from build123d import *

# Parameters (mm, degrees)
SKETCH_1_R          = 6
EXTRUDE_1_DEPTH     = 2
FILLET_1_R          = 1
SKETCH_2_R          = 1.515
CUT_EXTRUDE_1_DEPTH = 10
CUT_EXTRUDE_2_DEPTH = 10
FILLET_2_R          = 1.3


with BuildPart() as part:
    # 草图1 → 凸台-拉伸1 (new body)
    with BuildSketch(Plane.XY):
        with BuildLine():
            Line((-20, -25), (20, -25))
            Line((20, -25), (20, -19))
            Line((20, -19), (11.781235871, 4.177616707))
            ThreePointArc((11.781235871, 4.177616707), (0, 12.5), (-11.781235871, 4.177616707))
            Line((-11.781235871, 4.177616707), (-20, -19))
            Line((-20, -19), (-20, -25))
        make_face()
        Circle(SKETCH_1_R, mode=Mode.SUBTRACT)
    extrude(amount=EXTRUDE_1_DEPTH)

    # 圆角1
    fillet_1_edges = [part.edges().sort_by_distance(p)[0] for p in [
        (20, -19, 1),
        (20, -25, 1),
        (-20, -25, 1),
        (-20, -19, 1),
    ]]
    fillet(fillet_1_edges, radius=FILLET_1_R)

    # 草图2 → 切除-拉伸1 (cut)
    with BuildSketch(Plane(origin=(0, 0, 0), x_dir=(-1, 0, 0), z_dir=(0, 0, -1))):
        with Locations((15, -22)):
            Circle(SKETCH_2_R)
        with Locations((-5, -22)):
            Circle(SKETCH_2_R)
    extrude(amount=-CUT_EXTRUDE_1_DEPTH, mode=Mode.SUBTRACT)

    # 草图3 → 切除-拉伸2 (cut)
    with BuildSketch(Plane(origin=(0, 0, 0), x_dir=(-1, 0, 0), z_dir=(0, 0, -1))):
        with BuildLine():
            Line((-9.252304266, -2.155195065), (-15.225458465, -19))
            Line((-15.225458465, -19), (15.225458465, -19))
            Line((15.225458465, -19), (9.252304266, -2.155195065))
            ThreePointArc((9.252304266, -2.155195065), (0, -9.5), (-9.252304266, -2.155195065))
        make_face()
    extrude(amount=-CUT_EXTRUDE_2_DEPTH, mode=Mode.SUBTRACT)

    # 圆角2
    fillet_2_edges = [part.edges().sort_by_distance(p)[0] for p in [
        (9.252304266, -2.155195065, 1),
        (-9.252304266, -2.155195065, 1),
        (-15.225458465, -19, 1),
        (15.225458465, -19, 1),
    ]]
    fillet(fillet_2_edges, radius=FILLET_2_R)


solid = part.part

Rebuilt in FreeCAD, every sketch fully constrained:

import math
import FreeCAD as App
import Part
import Sketcher


def edges_at(feature, points):
    """Names of the edges that pass closest to the given points."""
    edges = feature.Shape.Edges
    near = lambda p: min(range(len(edges)), key=lambda i: edges[i].distToShape(Part.Vertex(*p))[0])
    return sorted({f"Edge{near(p) + 1}" for p in points})

doc = App.newDocument("Part")
body = doc.addObject("PartDesign::Body", "Body")

# Sketch on XY plane
sketch1 = doc.addObject("Sketcher::SketchObject", "Sketch")
body.addObject(sketch1)
sketch1.AttachmentSupport = (doc.XY_Plane, [""])
sketch1.MapMode = "FlatFace"
sketch1.addGeometry([
    Part.LineSegment(App.Vector(-20, -25, 0), App.Vector(20, -25, 0)),  # 0
    Part.LineSegment(App.Vector(20, -25, 0), App.Vector(20, -19, 0)),  # 1
    Part.LineSegment(App.Vector(20, -19, 0), App.Vector(12, 4, 0)),  # 2
    Part.ArcOfCircle(Part.Circle(App.Vector(0, 0, 0), App.Vector(0, 0, 1), 12), math.radians(20), math.radians(160)),  # 3
    Part.LineSegment(App.Vector(-12, 4, 0), App.Vector(-20, -19, 0)),  # 4
    Part.LineSegment(App.Vector(-20, -19, 0), App.Vector(-20, -25, 0)),  # 5
    Part.Circle(App.Vector(0, 0, 0), App.Vector(0, 0, 1), 6),  # 6
], False)
sketch1.addConstraint([
    Sketcher.Constraint("Coincident", 0, 2, 1, 1),
    Sketcher.Constraint("Coincident", 1, 2, 2, 1),
    Sketcher.Constraint("Tangent", 2, 2, 3, 1),
    Sketcher.Constraint("Tangent", 3, 2, 4, 1),
    Sketcher.Constraint("Coincident", 4, 2, 5, 1),
    Sketcher.Constraint("Coincident", 5, 2, 0, 1),
    Sketcher.Constraint("Horizontal", 0),
    Sketcher.Constraint("Vertical", 1),
    Sketcher.Constraint("Vertical", 5),
    Sketcher.Constraint("Coincident", 3, 3, -1, 1),
    Sketcher.Constraint("Coincident", 6, 3, -1, 1),
    Sketcher.Constraint("Symmetric", 1, 2, 4, 2, -2),
    Sketcher.Constraint("Diameter", 6, 12.0),
    Sketcher.Constraint("Radius", 3, 12.5),
    Sketcher.Constraint("DistanceX", 0, 1, 0, 2, 40.0),
    Sketcher.Constraint("DistanceY", 1, 1, 1, 2, 6.0),
    Sketcher.Constraint("DistanceY", 0, 2, -1, 1, 25.0),
])
pad1 = doc.addObject("PartDesign::Pad", "Pad")
body.addObject(pad1)
pad1.Profile = sketch1
pad1.Length = 2
doc.recompute()

fillet = doc.addObject("PartDesign::Fillet", "Fillet")
body.addObject(fillet)
fillet.Base = (pad1, edges_at(pad1, [
    (20, -19, 1),
    (20, -25, 1),
    (-20, -25, 1),
    (-20, -19, 1),
]))
fillet.Radius = 1

# Sketch on XY plane
sketch2 = doc.addObject("Sketcher::SketchObject", "Sketch001")
body.addObject(sketch2)
sketch2.AttachmentSupport = (doc.XY_Plane, [""])
sketch2.MapMode = "FlatFace"
sketch2.addGeometry([
    Part.Circle(App.Vector(-15, -22, 0), App.Vector(0, 0, 1), 1.5),
    Part.Circle(App.Vector(5, -22, 0), App.Vector(0, 0, 1), 1.5),
], False)
sketch2.addConstraint([
    Sketcher.Constraint("Equal", 0, 1),
    Sketcher.Constraint("Horizontal", 0, 3, 1, 3),
    Sketcher.Constraint("Diameter", 0, 3.03),
    Sketcher.Constraint("DistanceX", 0, 3, -1, 1, 15.0),
    Sketcher.Constraint("DistanceY", 0, 3, -1, 1, 22.0),
    Sketcher.Constraint("DistanceX", -1, 1, 1, 3, 5.0),
])
pocket1 = doc.addObject("PartDesign::Pocket", "Pocket")
body.addObject(pocket1)
pocket1.Profile = sketch2
pocket1.Length = 10
pocket1.Reversed = True

# Sketch on XY plane
sketch3 = doc.addObject("Sketcher::SketchObject", "Sketch002")
body.addObject(sketch3)
sketch3.AttachmentSupport = (doc.XY_Plane, [""])
sketch3.MapMode = "FlatFace"
sketch3.addGeometry([
    Part.LineSegment(App.Vector(9, -2, 0), App.Vector(15, -19, 0)),
    Part.LineSegment(App.Vector(15, -19, 0), App.Vector(-15, -19, 0)),
    Part.LineSegment(App.Vector(-15, -19, 0), App.Vector(-9, -2, 0)),
    Part.ArcOfCircle(Part.Circle(App.Vector(0, 0, 0), App.Vector(0, 0, 1), 10), math.radians(-167), math.radians(-13)),
], False)
sketch3.addConstraint([
    Sketcher.Constraint("Coincident", 0, 2, 1, 1),
    Sketcher.Constraint("Coincident", 1, 2, 2, 1),
    Sketcher.Constraint("Coincident", 2, 2, 3, 1),
    Sketcher.Constraint("Coincident", 3, 2, 0, 1),
    Sketcher.Constraint("Horizontal", 1),
    Sketcher.Constraint("Coincident", 3, 3, -1, 1),
    Sketcher.Constraint("Horizontal", 2, 2, 3, 2),
    Sketcher.Constraint("Equal", 0, 2),
    Sketcher.Constraint("Radius", 3, 9.5),
    Sketcher.Constraint("DistanceY", 0, 2, -1, 1, 19.0),
    Sketcher.Constraint("DistanceX", 1, 2, 1, 1, 30.450917),
    Sketcher.Constraint("DistanceX", 2, 2, 3, 2, 18.504609),
])
pocket2 = doc.addObject("PartDesign::Pocket", "Pocket001")
body.addObject(pocket2)
pocket2.Profile = sketch3
pocket2.Length = 10
pocket2.Reversed = True
doc.recompute()

fillet2 = doc.addObject("PartDesign::Fillet", "Fillet001")
body.addObject(fillet2)
fillet2.Base = (pocket2, edges_at(pocket2, [
    (9.252, -2.155, 1),
    (-9.252, -2.155, 1),
    (-15.225, -19, 1),
    (15.225, -19, 1),
]))
fillet2.Radius = 1.3

doc.recompute()
